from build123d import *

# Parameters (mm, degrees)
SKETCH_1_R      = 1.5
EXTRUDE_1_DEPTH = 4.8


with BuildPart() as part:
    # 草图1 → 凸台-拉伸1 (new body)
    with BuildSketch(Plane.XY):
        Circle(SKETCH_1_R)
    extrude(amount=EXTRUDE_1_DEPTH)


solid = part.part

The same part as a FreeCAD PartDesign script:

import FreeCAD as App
import Part
import Sketcher

doc = App.newDocument("Part")
body = doc.addObject("PartDesign::Body", "Body")

sketch1 = doc.addObject("Sketcher::SketchObject", "Sketch")
body.addObject(sketch1)
sketch1.AttachmentSupport = (doc.XY_Plane, [""])
sketch1.MapMode = "FlatFace"
sketch1.addGeometry(Part.Circle(App.Vector(0, 0, 0), App.Vector(0, 0, 1), 1.5), False)
sketch1.addConstraint(Sketcher.Constraint("Coincident", 0, 3, -1, 1))
sketch1.addConstraint(Sketcher.Constraint("Diameter", 0, 3.0))
pad1 = doc.addObject("PartDesign::Pad", "Pad")
body.addObject(pad1)
pad1.Profile = sketch1
pad1.Length = 4.8

doc.recompute()
